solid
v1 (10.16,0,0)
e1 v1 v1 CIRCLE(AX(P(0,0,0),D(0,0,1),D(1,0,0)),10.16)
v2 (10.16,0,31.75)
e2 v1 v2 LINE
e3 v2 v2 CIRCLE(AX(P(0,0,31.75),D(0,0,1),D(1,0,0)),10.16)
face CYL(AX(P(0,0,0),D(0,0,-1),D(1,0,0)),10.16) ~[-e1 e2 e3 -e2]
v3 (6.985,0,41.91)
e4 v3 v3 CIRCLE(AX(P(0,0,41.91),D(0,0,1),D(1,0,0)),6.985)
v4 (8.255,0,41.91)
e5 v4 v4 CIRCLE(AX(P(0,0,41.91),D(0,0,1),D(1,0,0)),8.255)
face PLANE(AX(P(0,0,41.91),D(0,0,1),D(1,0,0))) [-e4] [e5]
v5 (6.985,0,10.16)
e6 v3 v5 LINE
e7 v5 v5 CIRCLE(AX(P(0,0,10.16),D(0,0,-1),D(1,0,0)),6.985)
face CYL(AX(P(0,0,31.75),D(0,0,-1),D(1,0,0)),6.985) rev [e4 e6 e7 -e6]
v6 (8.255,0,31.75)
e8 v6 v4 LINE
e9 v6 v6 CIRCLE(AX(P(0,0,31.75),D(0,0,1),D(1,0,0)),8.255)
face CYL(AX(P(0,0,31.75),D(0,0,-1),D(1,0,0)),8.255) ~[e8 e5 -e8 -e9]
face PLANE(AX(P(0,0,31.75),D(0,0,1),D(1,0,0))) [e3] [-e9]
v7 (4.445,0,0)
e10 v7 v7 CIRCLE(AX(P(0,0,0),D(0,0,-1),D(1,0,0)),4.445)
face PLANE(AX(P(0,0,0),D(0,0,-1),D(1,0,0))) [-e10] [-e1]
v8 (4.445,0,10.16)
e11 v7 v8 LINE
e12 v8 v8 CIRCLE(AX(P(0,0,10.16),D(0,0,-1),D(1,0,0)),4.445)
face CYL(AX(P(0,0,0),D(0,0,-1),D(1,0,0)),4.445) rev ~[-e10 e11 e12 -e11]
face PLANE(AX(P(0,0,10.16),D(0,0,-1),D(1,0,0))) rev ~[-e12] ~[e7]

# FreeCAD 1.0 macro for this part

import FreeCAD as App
import Part
import Sketcher
Q = App.Units.Quantity

doc = App.newDocument("Part")
body = doc.addObject("PartDesign::Body", "Body")

sketch1 = doc.addObject("Sketcher::SketchObject", "Sketch")
body.addObject(sketch1)
sketch1.AttachmentSupport = (doc.XY_Plane, [""])
sketch1.MapMode = "FlatFace"
sketch1.addGeometry(Part.Circle(App.Vector(0, 0, 0), App.Vector(0, 0, 1), 10.16), False)
sketch1.addGeometry(Part.Circle(App.Vector(0, 0, 0), App.Vector(0, 0, 1), 6.985), False)
sketch1.addConstraint(Sketcher.Constraint("Coincident", 0, 3, -1, 1))
sketch1.addConstraint(Sketcher.Constraint("Coincident", 1, 3, -1, 1))
sketch1.addConstraint(Sketcher.Constraint("Diameter", 0, Q("0.8 in")))
sketch1.addConstraint(Sketcher.Constraint("Diameter", 1, Q("0.55 in")))
pad1 = doc.addObject("PartDesign::Pad", "Pad")
body.addObject(pad1)
pad1.Profile = sketch1
pad1.Length = Q("1.25 in")

sketch2 = doc.addObject("Sketcher::SketchObject", "Sketch001")
body.addObject(sketch2)
sketch2.AttachmentSupport = (doc.XY_Plane, [""])
sketch2.MapMode = "FlatFace"
sketch2.AttachmentOffset = App.Placement(App.Vector(0, 0, 1.25 * 25.4), App.Rotation())
sketch2.addGeometry(Part.Circle(App.Vector(0, 0, 0), App.Vector(0, 0, 1), 8.255), False)
sketch2.addGeometry(Part.Circle(App.Vector(0, 0, 0), App.Vector(0, 0, 1), 6.985), False)
sketch2.addConstraint(Sketcher.Constraint("Coincident", 0, 3, -1, 1))
sketch2.addConstraint(Sketcher.Constraint("Coincident", 1, 3, -1, 1))
sketch2.addConstraint(Sketcher.Constraint("Diameter", 0, Q("0.65 in")))
sketch2.addConstraint(Sketcher.Constraint("Diameter", 1, Q("0.55 in")))
pad2 = doc.addObject("PartDesign::Pad", "Pad001")
body.addObject(pad2)
pad2.Profile = sketch2
pad2.Length = Q("0.4 in")

sketch3 = doc.addObject("Sketcher::SketchObject", "Sketch002")
body.addObject(sketch3)
sketch3.AttachmentSupport = (doc.XY_Plane, [""])
sketch3.MapMode = "FlatFace"
sketch3.addGeometry(Part.Circle(App.Vector(0, 0, 0), App.Vector(0, 0, 1), 6.985), False)
sketch3.addGeometry(Part.Circle(App.Vector(0, 0, 0), App.Vector(0, 0, 1), 4.445), False)
sketch3.addConstraint(Sketcher.Constraint("Coincident", 0, 3, -1, 1))
sketch3.addConstraint(Sketcher.Constraint("Coincident", 1, 3, -1, 1))
sketch3.addConstraint(Sketcher.Constraint("Diameter", 0, Q("0.55 in")))
sketch3.addConstraint(Sketcher.Constraint("Diameter", 1, Q("0.35 in")))
pad3 = doc.addObject("PartDesign::Pad", "Pad002")
body.addObject(pad3)
pad3.Profile = sketch3
pad3.Length = Q("0.4 in")

doc.recompute()
